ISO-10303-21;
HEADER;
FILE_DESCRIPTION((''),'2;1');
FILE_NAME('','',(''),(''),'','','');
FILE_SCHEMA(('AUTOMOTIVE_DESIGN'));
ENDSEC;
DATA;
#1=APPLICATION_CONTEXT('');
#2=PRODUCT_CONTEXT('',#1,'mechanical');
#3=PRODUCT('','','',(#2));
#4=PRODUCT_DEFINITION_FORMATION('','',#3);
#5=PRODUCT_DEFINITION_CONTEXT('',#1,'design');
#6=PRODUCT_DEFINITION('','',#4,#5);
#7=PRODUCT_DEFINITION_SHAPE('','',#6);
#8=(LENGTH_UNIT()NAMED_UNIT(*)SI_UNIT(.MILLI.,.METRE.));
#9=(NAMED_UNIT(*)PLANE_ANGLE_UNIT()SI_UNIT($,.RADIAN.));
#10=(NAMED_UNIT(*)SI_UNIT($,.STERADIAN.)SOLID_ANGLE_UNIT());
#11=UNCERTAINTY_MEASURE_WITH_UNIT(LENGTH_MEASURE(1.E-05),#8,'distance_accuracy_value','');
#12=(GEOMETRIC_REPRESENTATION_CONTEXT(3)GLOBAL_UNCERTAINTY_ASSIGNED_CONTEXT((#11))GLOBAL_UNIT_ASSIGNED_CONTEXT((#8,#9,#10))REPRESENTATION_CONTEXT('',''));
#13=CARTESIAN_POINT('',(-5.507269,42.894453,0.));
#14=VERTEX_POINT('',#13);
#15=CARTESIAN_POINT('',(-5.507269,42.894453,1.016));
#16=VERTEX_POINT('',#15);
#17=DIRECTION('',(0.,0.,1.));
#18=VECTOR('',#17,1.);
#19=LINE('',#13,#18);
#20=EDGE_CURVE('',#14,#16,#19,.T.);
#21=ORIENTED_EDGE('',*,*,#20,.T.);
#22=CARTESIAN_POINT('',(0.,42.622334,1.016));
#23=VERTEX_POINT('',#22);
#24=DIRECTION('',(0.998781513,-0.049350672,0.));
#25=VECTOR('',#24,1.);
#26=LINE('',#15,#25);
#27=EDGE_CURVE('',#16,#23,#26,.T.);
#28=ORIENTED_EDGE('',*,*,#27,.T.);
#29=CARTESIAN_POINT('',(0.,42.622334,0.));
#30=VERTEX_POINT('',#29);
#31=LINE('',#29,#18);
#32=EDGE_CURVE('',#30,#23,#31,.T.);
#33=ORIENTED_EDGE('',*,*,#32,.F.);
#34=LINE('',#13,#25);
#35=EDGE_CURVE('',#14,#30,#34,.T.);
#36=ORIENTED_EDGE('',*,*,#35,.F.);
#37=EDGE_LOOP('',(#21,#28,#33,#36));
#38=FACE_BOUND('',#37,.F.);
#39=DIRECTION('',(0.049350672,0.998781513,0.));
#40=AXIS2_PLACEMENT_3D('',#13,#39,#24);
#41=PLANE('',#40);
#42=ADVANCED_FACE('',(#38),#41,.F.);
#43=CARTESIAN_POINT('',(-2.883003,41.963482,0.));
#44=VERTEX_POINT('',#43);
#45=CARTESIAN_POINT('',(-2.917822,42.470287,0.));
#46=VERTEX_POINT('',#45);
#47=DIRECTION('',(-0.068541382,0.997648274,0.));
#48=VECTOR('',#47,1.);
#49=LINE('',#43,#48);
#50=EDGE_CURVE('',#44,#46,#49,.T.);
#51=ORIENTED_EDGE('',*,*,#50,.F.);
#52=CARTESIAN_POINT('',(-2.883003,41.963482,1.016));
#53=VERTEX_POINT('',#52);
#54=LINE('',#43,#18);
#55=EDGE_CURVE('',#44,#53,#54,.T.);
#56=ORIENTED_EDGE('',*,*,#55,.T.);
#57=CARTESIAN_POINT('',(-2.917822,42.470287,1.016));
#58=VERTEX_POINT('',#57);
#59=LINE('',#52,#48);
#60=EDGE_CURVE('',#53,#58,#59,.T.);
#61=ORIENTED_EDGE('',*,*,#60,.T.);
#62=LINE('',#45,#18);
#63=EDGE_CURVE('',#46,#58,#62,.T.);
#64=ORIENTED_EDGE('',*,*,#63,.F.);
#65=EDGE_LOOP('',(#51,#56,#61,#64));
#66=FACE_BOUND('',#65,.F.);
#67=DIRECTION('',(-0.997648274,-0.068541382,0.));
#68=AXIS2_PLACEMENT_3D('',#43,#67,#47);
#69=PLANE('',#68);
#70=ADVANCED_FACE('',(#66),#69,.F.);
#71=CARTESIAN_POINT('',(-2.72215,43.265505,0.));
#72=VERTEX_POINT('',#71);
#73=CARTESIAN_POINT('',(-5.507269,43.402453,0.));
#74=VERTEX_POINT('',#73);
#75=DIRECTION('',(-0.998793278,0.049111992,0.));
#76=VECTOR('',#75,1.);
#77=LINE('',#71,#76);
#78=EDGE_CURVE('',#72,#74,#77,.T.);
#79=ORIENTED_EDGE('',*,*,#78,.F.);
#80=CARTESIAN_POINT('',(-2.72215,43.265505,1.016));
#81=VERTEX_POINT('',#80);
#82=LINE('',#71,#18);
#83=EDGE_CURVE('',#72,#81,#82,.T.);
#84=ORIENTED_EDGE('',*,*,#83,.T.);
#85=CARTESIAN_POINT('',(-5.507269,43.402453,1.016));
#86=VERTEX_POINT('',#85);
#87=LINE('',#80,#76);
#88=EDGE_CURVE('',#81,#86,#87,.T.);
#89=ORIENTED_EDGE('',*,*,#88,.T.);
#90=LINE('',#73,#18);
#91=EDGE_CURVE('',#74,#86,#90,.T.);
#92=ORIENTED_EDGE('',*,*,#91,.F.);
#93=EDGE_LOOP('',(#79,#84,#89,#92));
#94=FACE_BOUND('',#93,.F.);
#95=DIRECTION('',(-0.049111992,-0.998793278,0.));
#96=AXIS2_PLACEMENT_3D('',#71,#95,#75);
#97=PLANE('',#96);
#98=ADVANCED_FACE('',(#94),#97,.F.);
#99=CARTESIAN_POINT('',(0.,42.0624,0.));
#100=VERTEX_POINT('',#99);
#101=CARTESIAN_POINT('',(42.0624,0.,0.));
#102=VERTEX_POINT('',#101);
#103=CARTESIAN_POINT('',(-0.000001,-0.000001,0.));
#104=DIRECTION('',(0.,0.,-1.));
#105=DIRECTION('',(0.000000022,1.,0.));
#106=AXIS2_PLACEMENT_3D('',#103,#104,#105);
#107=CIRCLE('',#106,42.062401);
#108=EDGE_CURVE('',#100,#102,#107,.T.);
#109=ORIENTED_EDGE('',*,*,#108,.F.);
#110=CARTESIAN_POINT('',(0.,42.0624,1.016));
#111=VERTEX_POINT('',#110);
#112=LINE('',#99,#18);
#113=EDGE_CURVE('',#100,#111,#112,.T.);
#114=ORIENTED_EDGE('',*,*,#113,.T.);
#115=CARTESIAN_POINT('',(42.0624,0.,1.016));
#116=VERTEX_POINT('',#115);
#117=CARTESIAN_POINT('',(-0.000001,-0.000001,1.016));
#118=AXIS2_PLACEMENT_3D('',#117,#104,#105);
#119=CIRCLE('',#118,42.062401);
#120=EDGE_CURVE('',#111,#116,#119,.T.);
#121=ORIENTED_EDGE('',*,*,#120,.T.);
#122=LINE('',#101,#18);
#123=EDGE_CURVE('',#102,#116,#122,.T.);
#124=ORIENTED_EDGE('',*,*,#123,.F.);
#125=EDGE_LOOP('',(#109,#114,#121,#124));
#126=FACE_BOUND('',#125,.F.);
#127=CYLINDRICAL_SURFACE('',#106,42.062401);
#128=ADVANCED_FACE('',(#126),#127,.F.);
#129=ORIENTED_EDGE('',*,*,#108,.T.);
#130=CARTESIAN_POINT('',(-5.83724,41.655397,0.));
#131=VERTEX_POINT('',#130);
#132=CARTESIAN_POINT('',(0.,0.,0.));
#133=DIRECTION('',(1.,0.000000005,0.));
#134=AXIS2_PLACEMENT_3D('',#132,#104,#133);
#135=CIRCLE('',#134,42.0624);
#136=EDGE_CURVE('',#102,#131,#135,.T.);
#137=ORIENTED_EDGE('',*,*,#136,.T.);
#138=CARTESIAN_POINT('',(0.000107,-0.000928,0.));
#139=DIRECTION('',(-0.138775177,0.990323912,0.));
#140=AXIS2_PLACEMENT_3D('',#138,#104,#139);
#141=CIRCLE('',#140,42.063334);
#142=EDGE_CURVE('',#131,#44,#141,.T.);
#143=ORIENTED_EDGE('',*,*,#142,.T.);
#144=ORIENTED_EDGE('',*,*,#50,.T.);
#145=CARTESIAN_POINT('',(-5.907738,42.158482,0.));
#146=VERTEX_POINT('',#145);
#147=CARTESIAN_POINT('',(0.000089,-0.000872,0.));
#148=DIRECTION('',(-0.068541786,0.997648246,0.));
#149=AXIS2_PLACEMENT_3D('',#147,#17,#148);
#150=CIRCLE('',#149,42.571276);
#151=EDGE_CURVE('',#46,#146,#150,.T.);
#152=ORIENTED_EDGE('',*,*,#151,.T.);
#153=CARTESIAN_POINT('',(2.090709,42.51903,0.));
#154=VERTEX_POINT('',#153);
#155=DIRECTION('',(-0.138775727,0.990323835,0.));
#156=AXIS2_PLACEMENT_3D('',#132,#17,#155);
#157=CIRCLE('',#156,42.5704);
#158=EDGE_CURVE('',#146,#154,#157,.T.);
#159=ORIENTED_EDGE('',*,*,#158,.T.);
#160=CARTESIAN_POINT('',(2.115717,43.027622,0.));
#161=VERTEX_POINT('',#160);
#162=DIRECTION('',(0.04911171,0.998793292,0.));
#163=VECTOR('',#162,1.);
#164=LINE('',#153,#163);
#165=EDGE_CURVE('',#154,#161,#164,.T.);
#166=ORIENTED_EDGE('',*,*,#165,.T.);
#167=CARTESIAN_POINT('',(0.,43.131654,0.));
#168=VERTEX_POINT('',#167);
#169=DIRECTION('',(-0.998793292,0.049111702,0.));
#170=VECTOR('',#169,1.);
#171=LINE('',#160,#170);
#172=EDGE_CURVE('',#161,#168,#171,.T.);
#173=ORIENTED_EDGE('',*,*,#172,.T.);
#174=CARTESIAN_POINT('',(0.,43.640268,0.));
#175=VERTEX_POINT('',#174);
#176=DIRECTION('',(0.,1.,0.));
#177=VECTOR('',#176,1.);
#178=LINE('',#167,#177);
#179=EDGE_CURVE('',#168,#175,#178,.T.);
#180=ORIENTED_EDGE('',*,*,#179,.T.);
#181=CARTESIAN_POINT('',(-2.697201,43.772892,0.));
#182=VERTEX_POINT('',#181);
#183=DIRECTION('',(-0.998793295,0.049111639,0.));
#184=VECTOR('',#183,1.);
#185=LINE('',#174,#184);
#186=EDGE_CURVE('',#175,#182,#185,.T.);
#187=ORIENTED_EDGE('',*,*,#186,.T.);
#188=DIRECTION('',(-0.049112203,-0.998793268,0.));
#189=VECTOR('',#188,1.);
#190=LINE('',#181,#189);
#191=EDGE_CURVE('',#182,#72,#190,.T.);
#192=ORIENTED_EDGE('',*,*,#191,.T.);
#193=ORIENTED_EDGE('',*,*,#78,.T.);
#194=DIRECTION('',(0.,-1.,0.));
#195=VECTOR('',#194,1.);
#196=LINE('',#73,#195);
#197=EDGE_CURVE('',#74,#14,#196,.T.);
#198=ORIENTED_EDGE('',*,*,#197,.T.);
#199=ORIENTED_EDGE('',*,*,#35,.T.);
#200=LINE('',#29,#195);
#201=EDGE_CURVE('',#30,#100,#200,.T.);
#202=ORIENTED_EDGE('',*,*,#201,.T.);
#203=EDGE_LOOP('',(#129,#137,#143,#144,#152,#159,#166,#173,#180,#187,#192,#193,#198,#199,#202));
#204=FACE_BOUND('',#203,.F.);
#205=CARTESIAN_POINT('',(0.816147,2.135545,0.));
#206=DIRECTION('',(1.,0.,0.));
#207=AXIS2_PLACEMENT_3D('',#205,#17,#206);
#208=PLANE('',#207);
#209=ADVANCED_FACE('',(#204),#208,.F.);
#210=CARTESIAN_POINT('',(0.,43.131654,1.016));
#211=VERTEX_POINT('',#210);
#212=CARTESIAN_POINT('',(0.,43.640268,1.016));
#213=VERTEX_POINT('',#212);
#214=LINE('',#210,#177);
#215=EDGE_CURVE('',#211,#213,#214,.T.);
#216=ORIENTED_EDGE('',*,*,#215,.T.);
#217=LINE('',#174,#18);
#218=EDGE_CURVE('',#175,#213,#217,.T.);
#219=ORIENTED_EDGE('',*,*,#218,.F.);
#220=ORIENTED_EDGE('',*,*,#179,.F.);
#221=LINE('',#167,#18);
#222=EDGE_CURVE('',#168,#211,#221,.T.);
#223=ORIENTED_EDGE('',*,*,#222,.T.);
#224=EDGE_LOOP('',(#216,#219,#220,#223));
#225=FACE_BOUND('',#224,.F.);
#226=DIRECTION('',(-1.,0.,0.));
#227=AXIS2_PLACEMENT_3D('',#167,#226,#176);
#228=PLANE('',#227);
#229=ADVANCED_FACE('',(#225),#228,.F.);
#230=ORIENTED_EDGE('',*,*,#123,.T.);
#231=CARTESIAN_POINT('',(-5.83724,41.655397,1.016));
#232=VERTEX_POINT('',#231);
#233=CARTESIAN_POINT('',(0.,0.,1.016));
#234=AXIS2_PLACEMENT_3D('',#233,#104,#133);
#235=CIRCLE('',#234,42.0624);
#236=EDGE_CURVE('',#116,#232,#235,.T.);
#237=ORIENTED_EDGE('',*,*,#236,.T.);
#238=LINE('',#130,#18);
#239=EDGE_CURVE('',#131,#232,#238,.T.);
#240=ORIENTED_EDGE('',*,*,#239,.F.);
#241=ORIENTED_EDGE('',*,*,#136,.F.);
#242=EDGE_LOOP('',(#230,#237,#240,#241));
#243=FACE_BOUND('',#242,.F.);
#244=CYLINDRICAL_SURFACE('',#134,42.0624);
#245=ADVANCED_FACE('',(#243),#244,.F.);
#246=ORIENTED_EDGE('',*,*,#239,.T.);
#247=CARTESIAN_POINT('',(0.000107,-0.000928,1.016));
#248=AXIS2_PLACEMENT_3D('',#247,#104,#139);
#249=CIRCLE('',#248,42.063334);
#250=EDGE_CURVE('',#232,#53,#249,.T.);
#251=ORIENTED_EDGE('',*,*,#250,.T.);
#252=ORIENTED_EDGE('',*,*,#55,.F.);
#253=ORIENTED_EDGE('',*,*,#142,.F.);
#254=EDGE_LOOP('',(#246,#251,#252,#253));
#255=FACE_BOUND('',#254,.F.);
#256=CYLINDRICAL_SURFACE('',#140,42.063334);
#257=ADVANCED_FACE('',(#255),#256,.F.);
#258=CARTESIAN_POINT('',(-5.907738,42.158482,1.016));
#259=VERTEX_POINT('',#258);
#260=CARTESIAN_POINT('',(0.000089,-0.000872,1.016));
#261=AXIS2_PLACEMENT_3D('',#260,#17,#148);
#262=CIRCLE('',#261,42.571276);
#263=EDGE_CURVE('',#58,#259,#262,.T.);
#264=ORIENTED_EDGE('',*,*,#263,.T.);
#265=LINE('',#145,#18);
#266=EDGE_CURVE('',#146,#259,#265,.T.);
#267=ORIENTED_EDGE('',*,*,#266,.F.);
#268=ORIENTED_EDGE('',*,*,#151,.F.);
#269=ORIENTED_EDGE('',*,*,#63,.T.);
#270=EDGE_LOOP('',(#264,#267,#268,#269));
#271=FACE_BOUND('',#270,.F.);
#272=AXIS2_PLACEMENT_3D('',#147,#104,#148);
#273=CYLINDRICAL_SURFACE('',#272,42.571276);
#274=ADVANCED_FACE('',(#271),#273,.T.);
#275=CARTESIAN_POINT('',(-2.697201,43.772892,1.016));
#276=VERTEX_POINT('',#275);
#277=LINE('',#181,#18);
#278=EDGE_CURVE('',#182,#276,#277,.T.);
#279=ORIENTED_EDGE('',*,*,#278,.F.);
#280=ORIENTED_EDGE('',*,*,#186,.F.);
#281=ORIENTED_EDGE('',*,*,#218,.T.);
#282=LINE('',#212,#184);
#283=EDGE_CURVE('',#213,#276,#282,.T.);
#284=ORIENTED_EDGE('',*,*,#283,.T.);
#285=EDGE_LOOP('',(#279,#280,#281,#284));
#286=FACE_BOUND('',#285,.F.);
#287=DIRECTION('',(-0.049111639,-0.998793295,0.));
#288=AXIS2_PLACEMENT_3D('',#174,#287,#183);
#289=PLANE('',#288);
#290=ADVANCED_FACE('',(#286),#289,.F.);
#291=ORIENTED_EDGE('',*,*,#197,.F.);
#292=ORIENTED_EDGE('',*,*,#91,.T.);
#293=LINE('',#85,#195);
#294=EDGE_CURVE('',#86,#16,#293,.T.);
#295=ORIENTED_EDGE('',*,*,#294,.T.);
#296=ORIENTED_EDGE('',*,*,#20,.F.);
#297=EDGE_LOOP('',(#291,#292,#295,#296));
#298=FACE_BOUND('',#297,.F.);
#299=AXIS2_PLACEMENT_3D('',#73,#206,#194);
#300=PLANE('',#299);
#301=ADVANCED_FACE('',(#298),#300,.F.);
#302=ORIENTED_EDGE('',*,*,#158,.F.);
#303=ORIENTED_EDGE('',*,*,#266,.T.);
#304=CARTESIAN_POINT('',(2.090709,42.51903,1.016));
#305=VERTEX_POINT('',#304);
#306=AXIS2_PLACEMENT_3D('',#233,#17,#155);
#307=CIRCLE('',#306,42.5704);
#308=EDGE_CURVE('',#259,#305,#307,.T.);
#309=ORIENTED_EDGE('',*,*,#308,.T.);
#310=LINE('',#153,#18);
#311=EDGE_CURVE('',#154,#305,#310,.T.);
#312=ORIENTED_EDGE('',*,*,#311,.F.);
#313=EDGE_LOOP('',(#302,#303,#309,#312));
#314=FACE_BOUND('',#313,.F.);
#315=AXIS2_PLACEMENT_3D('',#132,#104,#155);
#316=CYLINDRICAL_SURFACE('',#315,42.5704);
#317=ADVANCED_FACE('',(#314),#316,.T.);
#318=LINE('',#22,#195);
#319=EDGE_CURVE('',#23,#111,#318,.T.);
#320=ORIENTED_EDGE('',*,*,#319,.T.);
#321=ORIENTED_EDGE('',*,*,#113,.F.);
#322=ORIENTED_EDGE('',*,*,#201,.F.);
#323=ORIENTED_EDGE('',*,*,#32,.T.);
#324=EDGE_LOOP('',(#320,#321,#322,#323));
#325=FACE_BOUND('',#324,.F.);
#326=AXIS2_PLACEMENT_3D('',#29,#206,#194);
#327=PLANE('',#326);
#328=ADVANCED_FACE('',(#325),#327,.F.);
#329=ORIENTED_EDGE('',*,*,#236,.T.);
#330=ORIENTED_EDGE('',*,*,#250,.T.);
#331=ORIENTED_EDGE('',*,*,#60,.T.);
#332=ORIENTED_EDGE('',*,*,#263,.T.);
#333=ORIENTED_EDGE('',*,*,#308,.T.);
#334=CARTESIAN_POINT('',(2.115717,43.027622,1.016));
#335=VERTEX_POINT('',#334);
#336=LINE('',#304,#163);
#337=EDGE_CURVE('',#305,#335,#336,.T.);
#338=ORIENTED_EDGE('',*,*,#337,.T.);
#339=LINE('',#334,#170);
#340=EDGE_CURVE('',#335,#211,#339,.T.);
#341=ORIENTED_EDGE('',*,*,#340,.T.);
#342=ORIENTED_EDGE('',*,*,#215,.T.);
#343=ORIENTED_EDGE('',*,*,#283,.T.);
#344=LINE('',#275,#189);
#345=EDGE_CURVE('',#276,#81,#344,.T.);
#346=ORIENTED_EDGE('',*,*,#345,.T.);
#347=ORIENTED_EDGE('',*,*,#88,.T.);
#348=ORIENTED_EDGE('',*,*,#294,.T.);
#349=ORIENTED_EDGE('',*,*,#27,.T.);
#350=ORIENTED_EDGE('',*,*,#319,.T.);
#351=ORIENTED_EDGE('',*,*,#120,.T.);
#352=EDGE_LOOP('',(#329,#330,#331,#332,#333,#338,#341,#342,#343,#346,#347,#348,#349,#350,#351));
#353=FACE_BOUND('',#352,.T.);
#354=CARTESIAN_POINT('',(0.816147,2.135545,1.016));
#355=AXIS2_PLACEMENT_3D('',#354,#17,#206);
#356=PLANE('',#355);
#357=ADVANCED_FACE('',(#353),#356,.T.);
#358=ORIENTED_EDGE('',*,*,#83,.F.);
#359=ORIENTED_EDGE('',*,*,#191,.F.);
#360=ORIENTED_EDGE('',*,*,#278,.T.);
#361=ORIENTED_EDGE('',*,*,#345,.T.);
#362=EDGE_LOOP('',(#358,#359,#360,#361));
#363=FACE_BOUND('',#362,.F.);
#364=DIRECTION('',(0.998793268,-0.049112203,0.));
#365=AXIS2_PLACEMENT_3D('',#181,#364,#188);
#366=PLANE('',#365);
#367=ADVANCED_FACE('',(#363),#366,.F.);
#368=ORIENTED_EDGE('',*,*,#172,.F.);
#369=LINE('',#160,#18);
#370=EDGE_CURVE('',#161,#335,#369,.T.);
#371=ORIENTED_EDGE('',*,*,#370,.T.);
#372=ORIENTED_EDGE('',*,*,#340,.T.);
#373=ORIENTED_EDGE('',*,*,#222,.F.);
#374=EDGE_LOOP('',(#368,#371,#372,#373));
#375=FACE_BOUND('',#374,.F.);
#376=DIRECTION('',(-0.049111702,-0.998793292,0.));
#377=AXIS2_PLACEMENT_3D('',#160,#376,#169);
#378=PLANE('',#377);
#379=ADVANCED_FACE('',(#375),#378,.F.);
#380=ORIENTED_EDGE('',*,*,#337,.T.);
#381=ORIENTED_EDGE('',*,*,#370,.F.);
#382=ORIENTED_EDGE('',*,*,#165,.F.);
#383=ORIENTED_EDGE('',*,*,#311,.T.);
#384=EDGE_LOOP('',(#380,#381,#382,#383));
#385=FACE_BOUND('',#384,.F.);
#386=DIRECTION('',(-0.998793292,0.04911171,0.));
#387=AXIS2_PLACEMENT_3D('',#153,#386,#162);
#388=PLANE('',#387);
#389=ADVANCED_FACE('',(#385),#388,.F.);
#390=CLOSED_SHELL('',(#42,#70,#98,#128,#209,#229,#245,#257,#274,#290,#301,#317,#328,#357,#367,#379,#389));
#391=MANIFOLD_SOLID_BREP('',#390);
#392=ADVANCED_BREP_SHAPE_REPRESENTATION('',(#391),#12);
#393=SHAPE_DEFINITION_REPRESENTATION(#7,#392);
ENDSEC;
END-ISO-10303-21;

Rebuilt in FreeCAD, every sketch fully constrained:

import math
import FreeCAD as App
import Part
import Sketcher
Q = App.Units.Quantity

doc = App.newDocument("Part")
params = doc.addObject("Spreadsheet::Sheet", "Params")
for row, (alias, value) in enumerate([
    ("sketch1_radius", "1.656 in"),
    ("sketch1_radius2", "1.676 in"),
    ("sketch1_height", "0.02 in"),
    ("sketch1_length", "0.02 in"),
    ("sketch1_length2", "0.02 in"),
    ("pad1_length", "0.04 in"),
], start=1):
    params.set(f"A{row}", alias)
    params.set(f"B{row}", "=" + value)
    params.setAlias(f"B{row}", alias)

body = doc.addObject("PartDesign::Body", "Body")

sketch1 = doc.addObject("Sketcher::SketchObject", "Sketch")
body.addObject(sketch1)
sketch1.AttachmentSupport = (doc.XY_Plane, [""])
sketch1.MapMode = "FlatFace"
sketch1.addGeometry(Part.ArcOfCircle(Part.Circle(App.Vector(0, 0, 0), App.Vector(0, 0, 1), 42.0624), math.radians(97.977009), math.radians(360)), False)
sketch1.addGeometry(Part.ArcOfCircle(Part.Circle(App.Vector(0.000107, -0.000928, 0), App.Vector(0, 0, 1), 42.063334), math.radians(93.930255), math.radians(97.976977)), False)
sketch1.addGeometry(Part.LineSegment(App.Vector(-2.883003, 41.963482, 0), App.Vector(-2.917822, 42.470287, 0)), False)
sketch1.addGeometry(Part.ArcOfCircle(Part.Circle(App.Vector(0.000089, -0.000872, 0), App.Vector(0, 0, 1), 42.571276), math.radians(93.930237), math.radians(97.976965)), False)
sketch1.addGeometry(Part.ArcOfCircle(Part.Circle(App.Vector(0, 0, 0), App.Vector(0, 0, 1), 42.5704), math.radians(97.977009), math.radians(447.184969)), False)
sketch1.addGeometry(Part.LineSegment(App.Vector(2.090709, 42.51903, 0), App.Vector(2.115717, 43.027622, 0)), False)
sketch1.addGeometry(Part.LineSegment(App.Vector(2.115717, 43.027622, 0), App.Vector(0, 43.131654, 0)), False)
sketch1.addGeometry(Part.LineSegment(App.Vector(0, 43.131654, 0), App.Vector(0, 43.640268, 0)), False)
sketch1.addGeometry(Part.LineSegment(App.Vector(0, 43.640268, 0), App.Vector(-2.697201, 43.772892, 0)), False)
sketch1.addGeometry(Part.LineSegment(App.Vector(-2.697201, 43.772892, 0), App.Vector(-2.72215, 43.265505, 0)), False)
sketch1.addGeometry(Part.LineSegment(App.Vector(-2.72215, 43.265505, 0), App.Vector(-5.507269, 43.402453, 0)), False)
sketch1.addGeometry(Part.LineSegment(App.Vector(-5.507269, 43.402453, 0), App.Vector(-5.507269, 42.894453, 0)), False)
sketch1.addGeometry(Part.LineSegment(App.Vector(-5.507269, 42.894453, 0), App.Vector(0, 42.622334, 0)), False)
sketch1.addGeometry(Part.LineSegment(App.Vector(0, 42.622334, 0), App.Vector(0, 42.0624, 0)), False)
sketch1.addGeometry(Part.ArcOfCircle(Part.Circle(App.Vector(-0.000001, -0.000001, 0), App.Vector(0, 0, 1), 42.062401), math.radians(0.000001), math.radians(89.999999)), False)
sketch1.addConstraint(Sketcher.Constraint("Coincident", 0, 1, 1, 2))
sketch1.addConstraint(Sketcher.Constraint("Coincident", 1, 1, 2, 1))
sketch1.addConstraint(Sketcher.Constraint("Coincident", 2, 2, 3, 1))
sketch1.addConstraint(Sketcher.Constraint("Coincident", 3, 2, 4, 1))
sketch1.addConstraint(Sketcher.Constraint("Coincident", 4, 2, 5, 1))
sketch1.addConstraint(Sketcher.Constraint("Coincident", 5, 2, 6, 1))
sketch1.addConstraint(Sketcher.Constraint("Coincident", 6, 2, 7, 1))
sketch1.addConstraint(Sketcher.Constraint("Coincident", 7, 2, 8, 1))
sketch1.addConstraint(Sketcher.Constraint("Coincident", 8, 2, 9, 1))
sketch1.addConstraint(Sketcher.Constraint("Coincident", 9, 2, 10, 1))
sketch1.addConstraint(Sketcher.Constraint("Coincident", 10, 2, 11, 1))
sketch1.addConstraint(Sketcher.Constraint("Coincident", 11, 2, 12, 1))
sketch1.addConstraint(Sketcher.Constraint("Coincident", 12, 2, 13, 1))
sketch1.addConstraint(Sketcher.Constraint("Coincident", 13, 2, 14, 2))
sketch1.addConstraint(Sketcher.Constraint("Coincident", 14, 1, 0, 2))
sketch1.addConstraint(Sketcher.Constraint("Vertical", 7))
sketch1.addConstraint(Sketcher.Constraint("Vertical", 11))
sketch1.addConstraint(Sketcher.Constraint("Vertical", 13))
sketch1.addConstraint(Sketcher.Constraint("Coincident", 0, 3, -1, 1))
sketch1.addConstraint(Sketcher.Constraint("Coincident", 4, 3, -1, 1))
sketch1.addConstraint(Sketcher.Constraint("Coincident", 14, 3, -1, 1))
sketch1.addConstraint(Sketcher.Constraint("PointOnObject", 6, 2, -2))
sketch1.addConstraint(Sketcher.Constraint("PointOnObject", 12, 2, -2))
sketch1.addConstraint(Sketcher.Constraint("PointOnObject", 14, 1, -1))
sketch1.addConstraint(Sketcher.Constraint("Radius", 0, Q("1.656 in")))
sketch1.addConstraint(Sketcher.Constraint("Radius", 4, Q("1.676 in")))
sketch1.addConstraint(Sketcher.Constraint("DistanceY", 11, 2, 11, 1, Q("0.02 in")))
sketch1.addConstraint(Sketcher.Constraint("Distance", 2, Q("0.02 in")))
sketch1.addConstraint(Sketcher.Constraint("Distance", 9, Q("0.02 in")))
sketch1.addConstraint(Sketcher.Constraint("Radius", 1, 42.063334))
sketch1.addConstraint(Sketcher.Constraint("Radius", 3, 42.571276))
sketch1.addConstraint(Sketcher.Constraint("DistanceX", 1, 1, 5, 2, Q("0.1968 in")))
sketch1.addConstraint(Sketcher.Constraint("DistanceX", 8, 2, -1, 1, 2.697201))
sketch1.addConstraint(Sketcher.Constraint("DistanceX", 3, 2, 0, 1, 0.070498))
sketch1.addConstraint(Sketcher.Constraint("DistanceY", 1, 1, 3, 2, 0.195))
sketch1.addConstraint(Sketcher.Constraint("DistanceX", 1, 1, 8, 2, 0.185802))
sketch1.addConstraint(Sketcher.Constraint("Distance", 8, 2.70046))
sketch1.addConstraint(Sketcher.Constraint("DistanceY", 7, 1, 7, 2, 0.508614))
sketch1.addConstraint(Sketcher.Constraint("DistanceY", 13, 2, 13, 1, 0.559934))
sketch1.addConstraint(Sketcher.Constraint("DistanceY", 1, 3, -1, 1, 0.000928))
sketch1.addConstraint(Sketcher.Constraint("DistanceX", -1, 1, 4, 2, 2.090709))
sketch1.addConstraint(Sketcher.Constraint("DistanceX", 9, 2, -1, 1, 2.72215))
sketch1.addConstraint(Sketcher.Constraint("DistanceX", 10, 2, -1, 1, 5.507269))
sketch1.addConstraint(Sketcher.Constraint("DistanceX", 2, 2, 1, 1, 0.034819))
sketch1.addConstraint(Sketcher.Constraint("DistanceY", 1, 1, 5, 2, 1.06414))
sketch1.addConstraint(Sketcher.Constraint("DistanceY", 5, 2, 6, 2, 0.104032))
sketch1.addConstraint(Sketcher.Constraint("DistanceY", 3, 2, 10, 2, 1.243971))
sketch1.setExpression("Constraints[24]", "Params.sketch1_radius")
sketch1.setExpression("Constraints[25]", "Params.sketch1_radius2")
sketch1.setExpression("Constraints[26]", "Params.sketch1_height")
sketch1.setExpression("Constraints[27]", "Params.sketch1_length")
sketch1.setExpression("Constraints[28]", "Params.sketch1_length2")
pad1 = doc.addObject("PartDesign::Pad", "Pad")
body.addObject(pad1)
pad1.Profile = sketch1
pad1.setExpression("Length", "Params.pad1_length")

doc.recompute()
